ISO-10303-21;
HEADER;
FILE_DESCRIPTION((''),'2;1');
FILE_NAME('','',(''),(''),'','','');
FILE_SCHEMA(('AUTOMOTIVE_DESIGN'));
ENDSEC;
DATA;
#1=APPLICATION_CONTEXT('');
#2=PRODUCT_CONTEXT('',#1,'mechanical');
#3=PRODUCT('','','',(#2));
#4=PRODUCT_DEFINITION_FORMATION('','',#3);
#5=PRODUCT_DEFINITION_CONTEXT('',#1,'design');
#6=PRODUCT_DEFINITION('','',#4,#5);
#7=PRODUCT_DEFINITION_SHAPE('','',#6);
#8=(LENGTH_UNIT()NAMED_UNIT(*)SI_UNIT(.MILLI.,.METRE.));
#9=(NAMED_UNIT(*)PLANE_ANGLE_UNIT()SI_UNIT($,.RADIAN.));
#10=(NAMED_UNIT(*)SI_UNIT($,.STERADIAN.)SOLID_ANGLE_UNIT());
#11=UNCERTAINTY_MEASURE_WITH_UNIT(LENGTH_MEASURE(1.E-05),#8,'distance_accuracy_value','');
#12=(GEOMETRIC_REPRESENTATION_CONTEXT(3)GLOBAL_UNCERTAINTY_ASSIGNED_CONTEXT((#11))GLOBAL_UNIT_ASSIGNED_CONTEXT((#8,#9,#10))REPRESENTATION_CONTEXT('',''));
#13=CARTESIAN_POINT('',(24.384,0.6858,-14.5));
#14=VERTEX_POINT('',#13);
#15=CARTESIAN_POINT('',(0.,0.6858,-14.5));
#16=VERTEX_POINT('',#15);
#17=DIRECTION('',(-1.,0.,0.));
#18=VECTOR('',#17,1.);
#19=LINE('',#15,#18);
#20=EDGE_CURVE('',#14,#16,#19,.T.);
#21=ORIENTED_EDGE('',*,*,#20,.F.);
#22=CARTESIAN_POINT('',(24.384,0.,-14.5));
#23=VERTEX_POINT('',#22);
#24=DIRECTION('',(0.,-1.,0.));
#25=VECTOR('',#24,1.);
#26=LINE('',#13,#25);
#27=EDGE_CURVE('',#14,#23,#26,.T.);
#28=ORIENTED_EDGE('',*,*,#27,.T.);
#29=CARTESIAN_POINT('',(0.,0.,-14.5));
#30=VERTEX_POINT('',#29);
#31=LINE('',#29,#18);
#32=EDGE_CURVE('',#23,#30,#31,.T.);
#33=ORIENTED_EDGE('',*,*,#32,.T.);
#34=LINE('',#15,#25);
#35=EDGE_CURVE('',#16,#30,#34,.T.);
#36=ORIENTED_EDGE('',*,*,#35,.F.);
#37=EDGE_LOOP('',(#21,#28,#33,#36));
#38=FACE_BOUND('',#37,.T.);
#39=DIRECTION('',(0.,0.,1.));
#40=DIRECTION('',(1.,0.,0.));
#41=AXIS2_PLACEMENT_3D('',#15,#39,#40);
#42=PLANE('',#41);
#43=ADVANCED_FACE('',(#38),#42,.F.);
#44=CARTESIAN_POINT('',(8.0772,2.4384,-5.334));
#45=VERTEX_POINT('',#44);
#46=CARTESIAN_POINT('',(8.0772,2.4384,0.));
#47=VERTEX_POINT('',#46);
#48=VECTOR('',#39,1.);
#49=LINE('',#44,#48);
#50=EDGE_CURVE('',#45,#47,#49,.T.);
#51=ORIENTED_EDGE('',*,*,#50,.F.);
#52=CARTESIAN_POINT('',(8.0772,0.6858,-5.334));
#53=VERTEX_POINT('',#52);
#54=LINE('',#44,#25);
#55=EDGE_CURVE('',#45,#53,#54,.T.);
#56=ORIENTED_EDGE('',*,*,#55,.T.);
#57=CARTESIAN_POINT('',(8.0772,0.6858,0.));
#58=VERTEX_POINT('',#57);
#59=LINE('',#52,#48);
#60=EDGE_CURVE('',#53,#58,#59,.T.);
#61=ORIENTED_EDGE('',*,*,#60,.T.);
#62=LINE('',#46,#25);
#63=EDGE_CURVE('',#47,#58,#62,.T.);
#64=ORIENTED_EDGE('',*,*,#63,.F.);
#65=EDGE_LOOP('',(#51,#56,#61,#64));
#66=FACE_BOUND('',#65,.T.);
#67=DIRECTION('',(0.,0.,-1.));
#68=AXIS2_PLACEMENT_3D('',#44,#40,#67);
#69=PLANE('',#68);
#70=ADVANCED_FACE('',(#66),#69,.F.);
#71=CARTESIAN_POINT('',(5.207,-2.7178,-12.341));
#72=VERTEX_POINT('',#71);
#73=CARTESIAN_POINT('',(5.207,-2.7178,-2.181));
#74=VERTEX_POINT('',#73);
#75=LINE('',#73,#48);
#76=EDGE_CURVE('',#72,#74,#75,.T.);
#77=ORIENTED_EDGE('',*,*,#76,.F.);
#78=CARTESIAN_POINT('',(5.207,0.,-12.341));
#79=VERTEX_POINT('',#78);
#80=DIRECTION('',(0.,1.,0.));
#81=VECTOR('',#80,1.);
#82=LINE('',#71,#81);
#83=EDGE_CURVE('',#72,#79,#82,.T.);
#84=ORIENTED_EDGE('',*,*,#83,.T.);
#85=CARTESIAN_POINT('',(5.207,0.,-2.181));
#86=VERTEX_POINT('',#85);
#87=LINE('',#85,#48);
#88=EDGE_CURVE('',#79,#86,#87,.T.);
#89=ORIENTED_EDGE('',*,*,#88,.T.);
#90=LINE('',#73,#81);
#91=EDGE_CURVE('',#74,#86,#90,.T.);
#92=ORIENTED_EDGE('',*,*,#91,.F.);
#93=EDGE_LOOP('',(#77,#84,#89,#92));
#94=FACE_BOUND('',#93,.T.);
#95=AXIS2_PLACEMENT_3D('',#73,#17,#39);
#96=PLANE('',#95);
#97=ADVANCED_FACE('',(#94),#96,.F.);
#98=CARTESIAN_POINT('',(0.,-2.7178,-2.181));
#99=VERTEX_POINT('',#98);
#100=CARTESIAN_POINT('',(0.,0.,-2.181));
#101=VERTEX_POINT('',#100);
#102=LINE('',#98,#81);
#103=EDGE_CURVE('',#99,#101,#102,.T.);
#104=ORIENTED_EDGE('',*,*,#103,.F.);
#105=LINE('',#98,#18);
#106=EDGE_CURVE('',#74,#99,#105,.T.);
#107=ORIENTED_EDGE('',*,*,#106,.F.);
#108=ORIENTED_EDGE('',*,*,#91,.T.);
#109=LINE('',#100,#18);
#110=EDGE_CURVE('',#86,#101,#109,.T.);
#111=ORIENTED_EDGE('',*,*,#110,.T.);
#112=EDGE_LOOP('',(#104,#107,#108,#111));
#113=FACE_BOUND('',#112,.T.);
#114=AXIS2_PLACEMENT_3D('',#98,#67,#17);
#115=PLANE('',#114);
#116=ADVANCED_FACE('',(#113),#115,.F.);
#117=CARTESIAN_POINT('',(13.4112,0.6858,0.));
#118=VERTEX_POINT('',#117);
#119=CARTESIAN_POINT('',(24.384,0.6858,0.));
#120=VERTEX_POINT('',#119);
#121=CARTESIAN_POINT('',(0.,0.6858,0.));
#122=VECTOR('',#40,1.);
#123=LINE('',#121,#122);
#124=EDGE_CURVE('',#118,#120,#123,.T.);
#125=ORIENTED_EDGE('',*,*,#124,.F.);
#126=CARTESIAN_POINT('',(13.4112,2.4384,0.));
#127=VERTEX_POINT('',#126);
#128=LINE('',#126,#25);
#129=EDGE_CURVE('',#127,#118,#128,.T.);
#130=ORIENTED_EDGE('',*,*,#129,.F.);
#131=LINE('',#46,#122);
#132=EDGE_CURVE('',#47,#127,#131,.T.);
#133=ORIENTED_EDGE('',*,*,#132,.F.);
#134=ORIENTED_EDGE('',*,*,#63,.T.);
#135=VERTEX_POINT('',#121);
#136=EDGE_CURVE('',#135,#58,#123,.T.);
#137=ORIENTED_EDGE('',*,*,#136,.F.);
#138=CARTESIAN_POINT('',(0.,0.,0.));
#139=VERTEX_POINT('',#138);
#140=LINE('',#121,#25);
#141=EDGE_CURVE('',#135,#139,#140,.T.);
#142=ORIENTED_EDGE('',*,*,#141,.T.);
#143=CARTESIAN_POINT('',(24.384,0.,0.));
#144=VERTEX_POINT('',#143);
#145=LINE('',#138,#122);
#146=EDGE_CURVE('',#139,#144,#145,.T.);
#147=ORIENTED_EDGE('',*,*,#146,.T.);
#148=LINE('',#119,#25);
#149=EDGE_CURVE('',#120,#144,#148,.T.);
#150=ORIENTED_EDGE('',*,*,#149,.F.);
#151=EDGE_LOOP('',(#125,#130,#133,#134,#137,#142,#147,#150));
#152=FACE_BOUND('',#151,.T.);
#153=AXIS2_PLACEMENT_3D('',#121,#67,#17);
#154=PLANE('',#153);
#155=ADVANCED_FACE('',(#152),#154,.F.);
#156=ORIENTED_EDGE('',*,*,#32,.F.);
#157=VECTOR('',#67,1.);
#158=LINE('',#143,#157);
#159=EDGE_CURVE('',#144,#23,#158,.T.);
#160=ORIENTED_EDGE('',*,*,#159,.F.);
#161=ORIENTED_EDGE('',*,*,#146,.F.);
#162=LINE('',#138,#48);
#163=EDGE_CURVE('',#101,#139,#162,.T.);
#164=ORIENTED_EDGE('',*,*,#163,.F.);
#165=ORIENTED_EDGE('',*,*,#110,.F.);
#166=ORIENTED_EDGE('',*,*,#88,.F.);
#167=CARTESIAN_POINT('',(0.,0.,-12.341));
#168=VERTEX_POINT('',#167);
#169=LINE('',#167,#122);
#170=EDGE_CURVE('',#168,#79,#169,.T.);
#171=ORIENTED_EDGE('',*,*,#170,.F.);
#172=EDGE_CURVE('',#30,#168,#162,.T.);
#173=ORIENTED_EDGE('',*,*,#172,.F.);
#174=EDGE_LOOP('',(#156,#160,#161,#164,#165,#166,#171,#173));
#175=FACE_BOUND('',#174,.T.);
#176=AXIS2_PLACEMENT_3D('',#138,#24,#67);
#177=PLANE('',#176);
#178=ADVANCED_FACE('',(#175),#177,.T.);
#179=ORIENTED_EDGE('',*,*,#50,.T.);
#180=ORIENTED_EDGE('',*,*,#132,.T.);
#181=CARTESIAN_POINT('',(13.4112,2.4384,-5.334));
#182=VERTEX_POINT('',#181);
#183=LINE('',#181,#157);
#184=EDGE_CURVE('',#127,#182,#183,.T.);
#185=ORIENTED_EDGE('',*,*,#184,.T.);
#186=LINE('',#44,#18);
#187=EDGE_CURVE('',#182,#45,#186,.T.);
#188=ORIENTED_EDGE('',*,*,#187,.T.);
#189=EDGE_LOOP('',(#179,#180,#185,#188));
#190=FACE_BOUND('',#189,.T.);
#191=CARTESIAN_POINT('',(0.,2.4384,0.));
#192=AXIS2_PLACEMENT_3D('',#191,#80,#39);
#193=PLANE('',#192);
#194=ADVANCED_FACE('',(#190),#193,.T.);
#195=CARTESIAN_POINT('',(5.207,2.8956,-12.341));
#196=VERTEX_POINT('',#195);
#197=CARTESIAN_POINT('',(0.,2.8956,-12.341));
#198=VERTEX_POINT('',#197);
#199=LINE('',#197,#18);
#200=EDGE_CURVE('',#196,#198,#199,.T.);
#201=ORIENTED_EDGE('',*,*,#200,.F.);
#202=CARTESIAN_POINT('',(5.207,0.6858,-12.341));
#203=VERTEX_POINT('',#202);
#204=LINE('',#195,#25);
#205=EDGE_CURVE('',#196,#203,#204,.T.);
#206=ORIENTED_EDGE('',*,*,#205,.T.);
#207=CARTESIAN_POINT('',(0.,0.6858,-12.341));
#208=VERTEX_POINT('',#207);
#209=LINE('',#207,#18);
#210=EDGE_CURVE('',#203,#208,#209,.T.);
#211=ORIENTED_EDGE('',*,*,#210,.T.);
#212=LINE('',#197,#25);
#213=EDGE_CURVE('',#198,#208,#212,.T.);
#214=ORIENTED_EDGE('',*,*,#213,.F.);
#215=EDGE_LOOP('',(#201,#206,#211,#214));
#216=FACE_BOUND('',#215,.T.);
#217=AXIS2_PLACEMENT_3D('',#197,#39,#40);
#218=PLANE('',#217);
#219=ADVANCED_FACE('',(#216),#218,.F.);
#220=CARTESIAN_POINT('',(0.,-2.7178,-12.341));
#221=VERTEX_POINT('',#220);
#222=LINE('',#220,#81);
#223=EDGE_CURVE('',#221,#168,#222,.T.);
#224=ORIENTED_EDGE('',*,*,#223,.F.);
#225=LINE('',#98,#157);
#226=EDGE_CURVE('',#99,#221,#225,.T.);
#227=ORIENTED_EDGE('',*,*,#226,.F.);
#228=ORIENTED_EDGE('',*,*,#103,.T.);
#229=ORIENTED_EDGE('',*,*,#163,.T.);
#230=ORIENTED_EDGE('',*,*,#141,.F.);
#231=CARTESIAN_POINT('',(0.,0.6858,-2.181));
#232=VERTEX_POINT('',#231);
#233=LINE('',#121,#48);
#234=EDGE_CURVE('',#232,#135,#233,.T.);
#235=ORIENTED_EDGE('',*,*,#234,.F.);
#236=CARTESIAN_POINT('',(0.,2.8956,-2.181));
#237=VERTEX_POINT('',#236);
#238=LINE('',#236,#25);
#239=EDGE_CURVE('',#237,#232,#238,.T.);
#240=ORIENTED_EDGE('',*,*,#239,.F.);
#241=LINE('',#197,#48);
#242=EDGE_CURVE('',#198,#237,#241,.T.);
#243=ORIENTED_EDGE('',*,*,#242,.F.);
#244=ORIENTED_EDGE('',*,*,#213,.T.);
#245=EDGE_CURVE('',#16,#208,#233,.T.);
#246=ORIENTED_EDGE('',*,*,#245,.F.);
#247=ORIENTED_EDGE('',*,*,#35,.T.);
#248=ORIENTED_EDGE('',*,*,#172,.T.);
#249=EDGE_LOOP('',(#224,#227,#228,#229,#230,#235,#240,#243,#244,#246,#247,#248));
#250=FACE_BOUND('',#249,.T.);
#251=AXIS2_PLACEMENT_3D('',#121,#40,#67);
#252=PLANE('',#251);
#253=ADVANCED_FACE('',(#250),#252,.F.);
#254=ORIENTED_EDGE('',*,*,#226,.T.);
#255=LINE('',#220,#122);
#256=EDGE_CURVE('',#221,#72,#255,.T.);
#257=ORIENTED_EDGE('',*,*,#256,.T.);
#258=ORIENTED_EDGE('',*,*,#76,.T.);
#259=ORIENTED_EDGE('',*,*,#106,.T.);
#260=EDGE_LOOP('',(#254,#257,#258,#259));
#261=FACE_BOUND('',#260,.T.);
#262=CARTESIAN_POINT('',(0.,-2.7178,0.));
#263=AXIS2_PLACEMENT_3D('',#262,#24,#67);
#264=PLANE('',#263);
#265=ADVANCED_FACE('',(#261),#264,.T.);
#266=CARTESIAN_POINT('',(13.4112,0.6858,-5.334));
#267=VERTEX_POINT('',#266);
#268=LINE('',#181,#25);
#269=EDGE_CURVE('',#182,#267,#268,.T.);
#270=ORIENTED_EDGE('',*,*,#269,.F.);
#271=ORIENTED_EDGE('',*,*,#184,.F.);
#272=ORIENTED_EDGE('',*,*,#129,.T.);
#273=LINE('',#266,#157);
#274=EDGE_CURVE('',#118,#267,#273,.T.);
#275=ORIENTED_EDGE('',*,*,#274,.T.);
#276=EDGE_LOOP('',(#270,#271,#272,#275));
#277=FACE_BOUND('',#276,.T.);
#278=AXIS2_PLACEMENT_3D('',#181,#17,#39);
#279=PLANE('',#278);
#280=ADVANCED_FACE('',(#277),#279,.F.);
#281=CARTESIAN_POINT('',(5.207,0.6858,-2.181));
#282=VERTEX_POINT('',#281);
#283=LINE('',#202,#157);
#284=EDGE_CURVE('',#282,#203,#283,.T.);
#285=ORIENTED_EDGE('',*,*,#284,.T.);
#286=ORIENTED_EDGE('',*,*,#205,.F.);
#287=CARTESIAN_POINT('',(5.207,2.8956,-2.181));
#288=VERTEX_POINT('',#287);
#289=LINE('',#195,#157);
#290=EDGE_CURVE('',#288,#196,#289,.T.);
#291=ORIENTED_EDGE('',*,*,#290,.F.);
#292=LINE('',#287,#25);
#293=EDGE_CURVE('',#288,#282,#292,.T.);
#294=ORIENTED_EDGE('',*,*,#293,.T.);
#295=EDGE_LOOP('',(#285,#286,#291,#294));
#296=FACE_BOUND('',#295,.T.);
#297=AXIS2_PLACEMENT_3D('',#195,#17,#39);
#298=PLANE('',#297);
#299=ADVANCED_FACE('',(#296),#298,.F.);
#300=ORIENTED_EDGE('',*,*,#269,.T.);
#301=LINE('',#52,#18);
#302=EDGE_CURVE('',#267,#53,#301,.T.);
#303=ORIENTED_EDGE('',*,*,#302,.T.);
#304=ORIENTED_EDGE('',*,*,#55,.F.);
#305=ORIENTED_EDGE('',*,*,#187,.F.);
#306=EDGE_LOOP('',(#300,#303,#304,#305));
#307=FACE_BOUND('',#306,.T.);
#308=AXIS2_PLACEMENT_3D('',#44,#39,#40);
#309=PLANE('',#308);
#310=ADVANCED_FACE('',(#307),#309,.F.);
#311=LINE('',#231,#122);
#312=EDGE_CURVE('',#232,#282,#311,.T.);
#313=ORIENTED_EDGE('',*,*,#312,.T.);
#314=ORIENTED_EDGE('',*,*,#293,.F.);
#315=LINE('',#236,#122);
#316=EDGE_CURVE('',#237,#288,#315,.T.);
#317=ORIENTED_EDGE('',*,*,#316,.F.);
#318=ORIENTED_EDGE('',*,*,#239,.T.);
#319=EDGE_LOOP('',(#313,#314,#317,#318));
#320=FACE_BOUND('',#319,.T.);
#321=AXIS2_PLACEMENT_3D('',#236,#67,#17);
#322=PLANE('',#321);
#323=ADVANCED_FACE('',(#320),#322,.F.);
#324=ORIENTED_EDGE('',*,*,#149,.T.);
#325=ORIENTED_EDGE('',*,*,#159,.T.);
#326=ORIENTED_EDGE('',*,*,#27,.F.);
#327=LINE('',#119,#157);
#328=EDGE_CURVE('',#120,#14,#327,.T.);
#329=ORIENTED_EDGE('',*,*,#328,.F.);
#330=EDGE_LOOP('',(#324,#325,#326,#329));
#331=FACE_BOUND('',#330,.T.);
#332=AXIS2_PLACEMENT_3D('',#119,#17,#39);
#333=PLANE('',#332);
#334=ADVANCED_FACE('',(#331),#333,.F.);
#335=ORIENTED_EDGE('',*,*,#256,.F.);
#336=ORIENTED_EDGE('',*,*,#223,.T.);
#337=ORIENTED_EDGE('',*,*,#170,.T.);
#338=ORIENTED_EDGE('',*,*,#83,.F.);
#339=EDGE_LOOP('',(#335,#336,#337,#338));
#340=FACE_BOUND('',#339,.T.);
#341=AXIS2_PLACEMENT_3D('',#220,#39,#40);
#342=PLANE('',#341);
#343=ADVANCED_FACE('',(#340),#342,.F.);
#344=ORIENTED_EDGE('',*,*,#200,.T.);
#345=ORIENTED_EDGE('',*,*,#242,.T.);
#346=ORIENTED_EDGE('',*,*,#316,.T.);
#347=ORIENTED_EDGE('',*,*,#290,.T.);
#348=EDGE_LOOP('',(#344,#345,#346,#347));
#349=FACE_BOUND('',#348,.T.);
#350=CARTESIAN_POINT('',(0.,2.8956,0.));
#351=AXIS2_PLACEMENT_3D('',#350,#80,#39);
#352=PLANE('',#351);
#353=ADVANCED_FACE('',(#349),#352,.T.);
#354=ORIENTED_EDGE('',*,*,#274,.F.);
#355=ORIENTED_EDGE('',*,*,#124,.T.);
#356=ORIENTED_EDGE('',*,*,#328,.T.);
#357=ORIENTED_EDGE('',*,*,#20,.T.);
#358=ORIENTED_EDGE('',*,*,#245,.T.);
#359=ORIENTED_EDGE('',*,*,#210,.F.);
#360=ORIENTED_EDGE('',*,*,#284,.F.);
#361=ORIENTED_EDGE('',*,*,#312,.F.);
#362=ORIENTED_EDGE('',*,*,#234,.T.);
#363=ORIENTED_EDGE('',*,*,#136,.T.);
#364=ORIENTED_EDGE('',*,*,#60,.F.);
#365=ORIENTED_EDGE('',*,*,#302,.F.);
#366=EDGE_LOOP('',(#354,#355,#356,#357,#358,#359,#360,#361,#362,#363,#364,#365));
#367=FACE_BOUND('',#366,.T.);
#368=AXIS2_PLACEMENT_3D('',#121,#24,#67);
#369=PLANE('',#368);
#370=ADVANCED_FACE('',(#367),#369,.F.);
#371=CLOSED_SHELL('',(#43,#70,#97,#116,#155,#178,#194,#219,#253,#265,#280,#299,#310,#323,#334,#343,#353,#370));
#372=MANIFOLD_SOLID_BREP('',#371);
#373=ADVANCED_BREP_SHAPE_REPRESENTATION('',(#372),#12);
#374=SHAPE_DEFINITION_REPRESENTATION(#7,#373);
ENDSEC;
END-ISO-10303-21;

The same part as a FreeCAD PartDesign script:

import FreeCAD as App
import Part
import Sketcher

V = App.Vector
Q = App.Units.Quantity


def add_polygon(sketch, points):
    """Adds a closed chain of lines whose ends are joined by coincident constraints."""
    first, n = sketch.GeometryCount, len(points)
    for a, b in zip(points, points[1:] + points[:1]):
        sketch.addGeometry(Part.LineSegment(App.Vector(*a, 0), App.Vector(*b, 0)), False)
    for i in range(n):
        sketch.addConstraint(Sketcher.Constraint("Coincident", first + i, 2, first + (i + 1) % n, 1))

doc = App.newDocument("Part")
body = doc.addObject("PartDesign::Body", "Body")

# Sketch on XZ plane
sketch1 = body.newObject("Sketcher::SketchObject", "Sketch")
sketch1.AttachmentSupport = (doc.getObject("XZ_Plane"), [""])
sketch1.MapMode = "FlatFace"
add_polygon(sketch1, [(0, -14), (0, 0), (24, 0), (24, -14)])  # lines 0-3
sketch1.addConstraint(Sketcher.Constraint("Vertical", 0))
sketch1.addConstraint(Sketcher.Constraint("Horizontal", 1))
sketch1.addConstraint(Sketcher.Constraint("Vertical", 2))
sketch1.addConstraint(Sketcher.Constraint("Horizontal", 3))
sketch1.addConstraint(Sketcher.Constraint("Coincident", 0, 2, -1, 1))
sketch1.addConstraint(Sketcher.Constraint("DistanceX", 1, 1, 1, 2, Q("0.96 in")))
sketch1.addConstraint(Sketcher.Constraint("DistanceY", 0, 1, 0, 2, Q("14.5 mm")))
pad1 = body.newObject("PartDesign::Pad", "Pad")
pad1.Profile = sketch1
pad1.Length = Q("0.027 in")
pad1.Reversed = True

# Sketch on XZ plane
sketch2 = body.newObject("Sketcher::SketchObject", "Sketch001")
sketch2.AttachmentSupport = (doc.getObject("XZ_Plane"), [""])
sketch2.MapMode = "FlatFace"
sketch2.AttachmentOffset = App.Placement(V(0, 0, -0.027 * 25.4), App.Rotation())
add_polygon(sketch2, [(0, -12), (0, -2), (5, -2), (5, -12)])  # lines 0-3
sketch2.addConstraint(Sketcher.Constraint("Vertical", 0))
sketch2.addConstraint(Sketcher.Constraint("Horizontal", 1))
sketch2.addConstraint(Sketcher.Constraint("Vertical", 2))
sketch2.addConstraint(Sketcher.Constraint("Horizontal", 3))
sketch2.addConstraint(Sketcher.Constraint("PointOnObject", 0, 2, -2))
sketch2.addConstraint(Sketcher.Constraint("DistanceY", 0, 1, 0, 2, Q("0.4 in")))
sketch2.addConstraint(Sketcher.Constraint("DistanceX", 1, 1, 1, 2, Q("0.205 in")))
sketch2.addConstraint(Sketcher.Constraint("DistanceY", 0, 2, -1, 1, Q("2.181 mm")))
pad2 = body.newObject("PartDesign::Pad", "Pad001")
pad2.Profile = sketch2
pad2.Length = Q("0.087 in")
pad2.Reversed = True

# Sketch on XZ plane
sketch3 = body.newObject("Sketcher::SketchObject", "Sketch002")
sketch3.AttachmentSupport = (doc.getObject("XZ_Plane"), [""])
sketch3.MapMode = "FlatFace"
add_polygon(sketch3, [(0, -2), (0, -12), (5, -12), (5, -2)])  # lines 0-3
sketch3.addConstraint(Sketcher.Constraint("Vertical", 0))
sketch3.addConstraint(Sketcher.Constraint("Horizontal", 1))
sketch3.addConstraint(Sketcher.Constraint("Vertical", 2))
sketch3.addConstraint(Sketcher.Constraint("Horizontal", 3))
sketch3.addConstraint(Sketcher.Constraint("PointOnObject", 0, 2, -2))
sketch3.addConstraint(Sketcher.Constraint("DistanceY", 0, 2, 0, 1, Q("0.4 in")))
sketch3.addConstraint(Sketcher.Constraint("DistanceX", 1, 1, 1, 2, Q("0.205 in")))
sketch3.addConstraint(Sketcher.Constraint("DistanceY", 0, 2, -1, 1, Q("12.341 mm")))
pad3 = body.newObject("PartDesign::Pad", "Pad002")
pad3.Profile = sketch3
pad3.Length = Q("0.107 in")

# Sketch on XZ plane
sketch4 = body.newObject("Sketcher::SketchObject", "Sketch003")
sketch4.AttachmentSupport = (doc.getObject("XZ_Plane"), [""])
sketch4.MapMode = "FlatFace"
sketch4.AttachmentOffset = App.Placement(V(0, 0, -0.027 * 25.4), App.Rotation())
add_polygon(sketch4, [(8, -5), (8, 0), (13, 0), (13, -5)])  # lines 0-3
sketch4.addConstraint(Sketcher.Constraint("Vertical", 0))
sketch4.addConstraint(Sketcher.Constraint("Horizontal", 1))
sketch4.addConstraint(Sketcher.Constraint("Vertical", 2))
sketch4.addConstraint(Sketcher.Constraint("Horizontal", 3))
sketch4.addConstraint(Sketcher.Constraint("PointOnObject", 0, 2, -1))
sketch4.addConstraint(Sketcher.Constraint("Equal", 3, 0))
sketch4.addConstraint(Sketcher.Constraint("DistanceX", 1, 1, 1, 2, Q("0.21 in")))
sketch4.addConstraint(Sketcher.Constraint("DistanceX", -1, 1, 0, 2, Q("0.318 in")))
pad4 = body.newObject("PartDesign::Pad", "Pad003")
pad4.Profile = sketch4
pad4.Length = Q("0.069 in")
pad4.Reversed = True

doc.recompute()
